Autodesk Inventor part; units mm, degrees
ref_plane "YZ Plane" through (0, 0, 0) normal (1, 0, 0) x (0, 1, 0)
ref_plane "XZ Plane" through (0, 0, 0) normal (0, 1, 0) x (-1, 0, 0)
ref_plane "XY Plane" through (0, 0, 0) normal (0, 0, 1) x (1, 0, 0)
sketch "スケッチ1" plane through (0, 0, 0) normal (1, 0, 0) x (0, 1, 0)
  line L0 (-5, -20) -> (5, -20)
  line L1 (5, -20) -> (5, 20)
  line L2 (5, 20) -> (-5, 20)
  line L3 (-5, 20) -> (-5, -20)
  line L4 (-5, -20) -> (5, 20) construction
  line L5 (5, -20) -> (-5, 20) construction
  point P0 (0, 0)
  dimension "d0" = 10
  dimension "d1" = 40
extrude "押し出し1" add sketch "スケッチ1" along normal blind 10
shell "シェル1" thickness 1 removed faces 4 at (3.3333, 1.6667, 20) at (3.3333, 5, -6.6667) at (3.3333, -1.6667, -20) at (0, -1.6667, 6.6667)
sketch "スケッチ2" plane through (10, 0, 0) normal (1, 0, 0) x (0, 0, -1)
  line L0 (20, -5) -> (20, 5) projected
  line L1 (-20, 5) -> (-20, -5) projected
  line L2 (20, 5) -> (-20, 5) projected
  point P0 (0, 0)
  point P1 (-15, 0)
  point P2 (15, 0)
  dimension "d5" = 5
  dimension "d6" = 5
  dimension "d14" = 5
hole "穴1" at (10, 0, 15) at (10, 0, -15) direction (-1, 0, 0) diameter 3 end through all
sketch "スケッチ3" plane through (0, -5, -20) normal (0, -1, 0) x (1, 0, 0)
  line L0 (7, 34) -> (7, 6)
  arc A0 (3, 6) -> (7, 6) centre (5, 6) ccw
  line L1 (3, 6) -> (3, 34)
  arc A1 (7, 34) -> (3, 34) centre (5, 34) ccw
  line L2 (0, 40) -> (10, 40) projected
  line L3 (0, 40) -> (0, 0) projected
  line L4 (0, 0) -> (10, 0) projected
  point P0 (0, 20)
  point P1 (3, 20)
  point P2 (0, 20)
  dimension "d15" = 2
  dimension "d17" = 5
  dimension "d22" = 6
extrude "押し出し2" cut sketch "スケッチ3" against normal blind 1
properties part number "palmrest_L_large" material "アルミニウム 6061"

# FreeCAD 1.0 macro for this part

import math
import FreeCAD as App
import Part
import Sketcher

V = App.Vector
Q = App.Units.Quantity


def faces_at(feature, points):
    """Names of the faces that lie closest to the given points."""
    faces = feature.Shape.Faces
    near = lambda p: min(range(len(faces)), key=lambda i: faces[i].distToShape(Part.Vertex(*p))[0])
    return sorted({f"Face{near(p) + 1}" for p in points})


def add_polygon(sketch, points):
    """Adds a closed chain of lines whose ends are joined by coincident constraints."""
    first, n = sketch.GeometryCount, len(points)
    for a, b in zip(points, points[1:] + points[:1]):
        sketch.addGeometry(Part.LineSegment(App.Vector(*a, 0), App.Vector(*b, 0)), False)
    for i in range(n):
        sketch.addConstraint(Sketcher.Constraint("Coincident", first + i, 2, first + (i + 1) % n, 1))

doc = App.newDocument("Part")
body = doc.addObject("PartDesign::Body", "Body")

sketch1 = body.newObject("Sketcher::SketchObject", "Sketch")
sketch1.AttachmentSupport = (doc.getObject("YZ_Plane"), [""])
sketch1.MapMode = "FlatFace"
add_polygon(sketch1, [(-5, 20), (-5, -20), (5, -20), (5, 20)])
sketch1.addConstraint(Sketcher.Constraint("Vertical", 0))
sketch1.addConstraint(Sketcher.Constraint("Horizontal", 1))
sketch1.addConstraint(Sketcher.Constraint("Vertical", 2))
sketch1.addConstraint(Sketcher.Constraint("Horizontal", 3))
sketch1.addConstraint(Sketcher.Constraint("Symmetric", 0, 2, 2, 2, -1, 1))
sketch1.addConstraint(Sketcher.Constraint("DistanceX", 1, 1, 1, 2, Q("10 mm")))
sketch1.addConstraint(Sketcher.Constraint("DistanceY", 0, 2, 0, 1, Q("40 mm")))
pad1 = body.newObject("PartDesign::Pad", "Pad")
pad1.Profile = sketch1
pad1.Length = 10
doc.recompute()

thickness = body.newObject("PartDesign::Thickness", "Thickness")
thickness.Base = (pad1, faces_at(pad1, [
    (3.333, 1.667, 20),
    (3.333, 5, -6.667),
    (3.333, -1.667, -20),
    (0, -1.667, 6.667),
]))
thickness.Value = 1
thickness.Reversed = True
thickness.Join = "Intersection"

sketch2 = body.newObject("Sketcher::SketchObject", "Sketch001")
sketch2.AttachmentSupport = (doc.getObject("YZ_Plane"), [""])
sketch2.MapMode = "FlatFace"
sketch2.AttachmentOffset = App.Placement(V(0, 0, 10), App.Rotation())
sketch2.addGeometry(Part.Circle(V(0, 15, 0), V(0, 0, 1), 1.5), False)
sketch2.addGeometry(Part.Circle(V(0, -15, 0), V(0, 0, 1), 1.5), False)
sketch2.addConstraint(Sketcher.Constraint("Equal", 0, 1))
sketch2.addConstraint(Sketcher.Constraint("Symmetric", 0, 3, 1, 3, -1, 1))
sketch2.addConstraint(Sketcher.Constraint("PointOnObject", 0, 3, -2))
sketch2.addConstraint(Sketcher.Constraint("Diameter", 0, Q("3 mm")))
sketch2.addConstraint(Sketcher.Constraint("DistanceY", -1, 1, 0, 3, Q("15 mm")))
doc.recompute()
hole = body.newObject("PartDesign::Hole", "Hole")
hole.Profile = sketch2
hole.ThreadType = "None"
hole.Diameter = 3
hole.DepthType = "ThroughAll"

sketch3 = body.newObject("Sketcher::SketchObject", "Sketch002")
sketch3.AttachmentSupport = (doc.getObject("XZ_Plane"), [""])
sketch3.MapMode = "FlatFace"
sketch3.AttachmentOffset = App.Placement(V(0, 0, 5), App.Rotation())
sketch3.addGeometry(Part.LineSegment(V(7, -14, 0), V(7, 14, 0)), False)
sketch3.addGeometry(Part.ArcOfCircle(Part.Circle(V(5, 14, 0), V(0, 0, 1), 2), math.radians(0), math.radians(180)), False)
sketch3.addGeometry(Part.LineSegment(V(3, 14, 0), V(3, -14, 0)), False)
sketch3.addGeometry(Part.ArcOfCircle(Part.Circle(V(5, -14, 0), V(0, 0, 1), 2), math.radians(180), math.radians(360)), False)
sketch3.addConstraint(Sketcher.Constraint("Tangent", 0, 2, 1, 1))
sketch3.addConstraint(Sketcher.Constraint("Tangent", 1, 2, 2, 1))
sketch3.addConstraint(Sketcher.Constraint("Tangent", 2, 2, 3, 1))
sketch3.addConstraint(Sketcher.Constraint("Tangent", 3, 2, 0, 1))
sketch3.addConstraint(Sketcher.Constraint("Vertical", 0))
sketch3.addConstraint(Sketcher.Constraint("Vertical", 2))
sketch3.addConstraint(Sketcher.Constraint("Radius", 1, Q("2 mm")))
sketch3.addConstraint(Sketcher.Constraint("DistanceX", -1, 1, 1, 3, Q("5 mm")))
sketch3.addConstraint(Sketcher.Constraint("DistanceY", 0, 1, 0, 2, Q("28 mm")))
sketch3.addConstraint(Sketcher.Constraint("DistanceY", -1, 1, 1, 3, Q("14 mm")))
pocket1 = body.newObject("PartDesign::Pocket", "Pocket")
pocket1.Profile = sketch3
pocket1.Length = 1

doc.recompute()
